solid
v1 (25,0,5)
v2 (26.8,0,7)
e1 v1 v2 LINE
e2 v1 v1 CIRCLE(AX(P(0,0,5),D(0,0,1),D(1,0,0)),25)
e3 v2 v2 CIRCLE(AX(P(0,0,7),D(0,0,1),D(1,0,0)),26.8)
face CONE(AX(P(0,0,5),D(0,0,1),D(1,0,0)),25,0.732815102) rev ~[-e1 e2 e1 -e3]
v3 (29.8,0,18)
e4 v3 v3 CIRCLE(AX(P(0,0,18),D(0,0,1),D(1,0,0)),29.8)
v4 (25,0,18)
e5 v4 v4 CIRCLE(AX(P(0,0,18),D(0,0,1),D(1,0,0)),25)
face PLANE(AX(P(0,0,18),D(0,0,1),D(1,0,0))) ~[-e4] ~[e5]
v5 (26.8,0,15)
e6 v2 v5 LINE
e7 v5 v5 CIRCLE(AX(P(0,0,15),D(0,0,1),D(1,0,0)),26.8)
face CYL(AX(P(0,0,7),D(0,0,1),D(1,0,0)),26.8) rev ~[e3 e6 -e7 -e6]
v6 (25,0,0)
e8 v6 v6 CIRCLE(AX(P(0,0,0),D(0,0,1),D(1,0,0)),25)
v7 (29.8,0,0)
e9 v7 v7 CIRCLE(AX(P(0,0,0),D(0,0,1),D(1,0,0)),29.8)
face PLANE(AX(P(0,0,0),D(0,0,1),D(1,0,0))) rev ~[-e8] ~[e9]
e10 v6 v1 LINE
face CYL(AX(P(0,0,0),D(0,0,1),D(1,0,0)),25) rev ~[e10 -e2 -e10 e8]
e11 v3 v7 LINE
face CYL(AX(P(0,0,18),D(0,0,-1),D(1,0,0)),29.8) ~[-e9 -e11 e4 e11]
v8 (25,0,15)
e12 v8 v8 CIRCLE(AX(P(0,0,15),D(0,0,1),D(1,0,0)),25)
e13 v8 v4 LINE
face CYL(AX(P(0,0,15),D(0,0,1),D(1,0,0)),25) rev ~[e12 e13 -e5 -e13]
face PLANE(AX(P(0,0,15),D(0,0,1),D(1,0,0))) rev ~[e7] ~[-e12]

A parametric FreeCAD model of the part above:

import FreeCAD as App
import Part
import Sketcher

V = App.Vector


def add_polygon(sketch, points):
    """Adds a closed chain of lines whose ends are joined by coincident constraints."""
    first, n = sketch.GeometryCount, len(points)
    for a, b in zip(points, points[1:] + points[:1]):
        sketch.addGeometry(Part.LineSegment(App.Vector(*a, 0), App.Vector(*b, 0)), False)
    for i in range(n):
        sketch.addConstraint(Sketcher.Constraint("Coincident", first + i, 2, first + (i + 1) % n, 1))

doc = App.newDocument("Part")
body = doc.addObject("PartDesign::Body", "Body")

# Sketch on XZ plane
sketch1 = body.newObject("Sketcher::SketchObject", "Sketch")
sketch1.AttachmentSupport = (doc.getObject("XZ_Plane"), [""])
sketch1.MapMode = "FlatFace"
add_polygon(sketch1, [(25, 5), (25, 0), (29.8, 0), (29.8, 18), (25, 18), (25, 15), (26.8, 15), (26.8, 7)])  # lines 0-7
sketch1.addConstraint(Sketcher.Constraint("Vertical", 0))
sketch1.addConstraint(Sketcher.Constraint("Horizontal", 1))
sketch1.addConstraint(Sketcher.Constraint("Vertical", 2))
sketch1.addConstraint(Sketcher.Constraint("Horizontal", 3))
sketch1.addConstraint(Sketcher.Constraint("Vertical", 4))
sketch1.addConstraint(Sketcher.Constraint("Horizontal", 5))
sketch1.addConstraint(Sketcher.Constraint("Vertical", 6))
sketch1.addConstraint(Sketcher.Constraint("PointOnObject", 0, 2, -1))
sketch1.addConstraint(Sketcher.Constraint("Vertical", 0, 2, 3, 2))
sketch1.addConstraint(Sketcher.Constraint("DistanceY", 0, 2, 0, 1, 5.0))
sketch1.addConstraint(Sketcher.Constraint("DistanceY", 2, 1, 2, 2, 18.0))
sketch1.addConstraint(Sketcher.Constraint("DistanceY", 4, 2, 4, 1, 3.0))
sketch1.addConstraint(Sketcher.Constraint("DistanceY", 6, 2, 6, 1, 8.0))
sketch1.addConstraint(Sketcher.Constraint("DistanceX", 1, 1, 1, 2, 4.8))
sketch1.addConstraint(Sketcher.Constraint("DistanceX", 5, 1, 5, 2, 1.8))
sketch1.addConstraint(Sketcher.Constraint("DistanceX", -1, 1, 0, 2, 25.0))
revolution = body.newObject("PartDesign::Revolution", "Revolution")
revolution.Profile = sketch1
revolution.ReferenceAxis = (sketch1, ["V_Axis"])
revolution.Angle = 360

doc.recompute()
